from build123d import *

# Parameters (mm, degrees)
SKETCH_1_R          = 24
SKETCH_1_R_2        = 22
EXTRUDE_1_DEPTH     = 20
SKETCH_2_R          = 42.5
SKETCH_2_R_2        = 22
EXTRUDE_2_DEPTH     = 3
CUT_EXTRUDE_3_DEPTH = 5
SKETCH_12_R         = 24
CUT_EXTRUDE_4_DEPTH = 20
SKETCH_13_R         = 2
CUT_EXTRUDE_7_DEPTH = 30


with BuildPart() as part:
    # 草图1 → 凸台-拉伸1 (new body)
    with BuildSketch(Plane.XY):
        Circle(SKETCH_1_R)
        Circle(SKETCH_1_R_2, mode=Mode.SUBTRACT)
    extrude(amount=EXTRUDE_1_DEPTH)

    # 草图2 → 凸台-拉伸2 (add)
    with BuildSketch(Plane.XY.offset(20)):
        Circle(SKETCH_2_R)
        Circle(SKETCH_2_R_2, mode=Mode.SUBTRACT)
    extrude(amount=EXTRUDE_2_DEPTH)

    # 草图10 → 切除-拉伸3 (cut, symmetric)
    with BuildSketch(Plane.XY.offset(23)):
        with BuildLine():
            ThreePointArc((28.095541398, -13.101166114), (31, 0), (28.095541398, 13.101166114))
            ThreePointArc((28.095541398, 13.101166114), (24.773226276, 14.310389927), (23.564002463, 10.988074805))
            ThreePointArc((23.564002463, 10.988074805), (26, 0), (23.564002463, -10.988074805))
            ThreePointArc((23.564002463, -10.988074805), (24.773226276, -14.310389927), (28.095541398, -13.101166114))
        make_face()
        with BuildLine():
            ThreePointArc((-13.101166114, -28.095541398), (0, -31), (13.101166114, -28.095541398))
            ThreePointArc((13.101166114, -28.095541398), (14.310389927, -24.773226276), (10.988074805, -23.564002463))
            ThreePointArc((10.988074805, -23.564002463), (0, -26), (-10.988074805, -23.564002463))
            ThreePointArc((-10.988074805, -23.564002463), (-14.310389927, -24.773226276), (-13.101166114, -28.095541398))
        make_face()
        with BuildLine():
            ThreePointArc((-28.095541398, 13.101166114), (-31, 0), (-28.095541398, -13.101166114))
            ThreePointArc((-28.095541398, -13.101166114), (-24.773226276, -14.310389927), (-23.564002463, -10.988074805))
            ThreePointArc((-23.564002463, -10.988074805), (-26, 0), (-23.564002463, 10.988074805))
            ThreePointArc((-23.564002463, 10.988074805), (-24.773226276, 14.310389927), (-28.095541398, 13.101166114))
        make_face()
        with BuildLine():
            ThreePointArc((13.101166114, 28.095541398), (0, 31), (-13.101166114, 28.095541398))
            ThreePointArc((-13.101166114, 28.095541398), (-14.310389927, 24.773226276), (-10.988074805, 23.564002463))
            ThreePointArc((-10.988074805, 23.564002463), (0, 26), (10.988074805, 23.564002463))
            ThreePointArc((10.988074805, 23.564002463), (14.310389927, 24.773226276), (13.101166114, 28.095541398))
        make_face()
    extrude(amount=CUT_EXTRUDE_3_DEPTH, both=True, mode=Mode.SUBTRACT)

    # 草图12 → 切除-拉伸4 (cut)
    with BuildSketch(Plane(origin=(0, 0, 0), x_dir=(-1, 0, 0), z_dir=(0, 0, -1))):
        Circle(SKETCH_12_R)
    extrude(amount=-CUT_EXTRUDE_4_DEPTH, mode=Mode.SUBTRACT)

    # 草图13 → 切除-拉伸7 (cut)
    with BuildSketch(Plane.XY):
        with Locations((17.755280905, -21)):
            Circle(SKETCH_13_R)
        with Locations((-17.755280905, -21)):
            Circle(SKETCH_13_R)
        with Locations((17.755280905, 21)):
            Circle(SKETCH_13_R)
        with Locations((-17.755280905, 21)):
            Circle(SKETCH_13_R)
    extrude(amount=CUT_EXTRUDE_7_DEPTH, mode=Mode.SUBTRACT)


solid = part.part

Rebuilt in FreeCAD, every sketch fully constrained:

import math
import FreeCAD as App
import Part
import Sketcher
from FreeCAD import Vector
Q = App.Units.Quantity

doc = App.newDocument("Part")
params = doc.addObject("Spreadsheet::Sheet", "Params")
for row, (alias, value) in enumerate([
    ("sketch1_diameter", "48 mm"),
    ("sketch1_diameter2", "44 mm"),
    ("pad1_length", "20 mm"),
    ("sketch2_diameter", "85 mm"),
    ("sketch2_diameter2", "44 mm"),
    ("pad2_length", "3 mm"),
    ("sketch3_radius", "31 mm"),
    ("sketch3_radius2", "26 mm"),
    ("pocket1_length", "10 mm"),
    ("sketch4_diameter", "48 mm"),
    ("pocket2_length", "20 mm"),
    ("sketch5_diameter", "4 mm"),
    ("pocket3_length", "30 mm"),
], start=1):
    params.set(f"A{row}", alias)
    params.set(f"B{row}", "=" + value)
    params.setAlias(f"B{row}", alias)

body = doc.addObject("PartDesign::Body", "Body")

# Sketch on XY plane
sketch1 = body.newObject("Sketcher::SketchObject", "Sketch")
sketch1.AttachmentSupport = (doc.getObject("XY_Plane"), [""])
sketch1.MapMode = "FlatFace"
sketch1.addGeometry([
    Part.Circle(Vector(0, 0, 0), Vector(0, 0, 1), 24),
    Part.Circle(Vector(0, 0, 0), Vector(0, 0, 1), 22),
], False)
sketch1.addConstraint([
    Sketcher.Constraint("Coincident", 0, 3, -1, 1),
    Sketcher.Constraint("Coincident", 1, 3, -1, 1),
    Sketcher.Constraint("Diameter", 0, Q("48 mm")),
    Sketcher.Constraint("Diameter", 1, Q("44 mm")),
])
sketch1.setExpression("Constraints[2]", "Params.sketch1_diameter")
sketch1.setExpression("Constraints[3]", "Params.sketch1_diameter2")
pad1 = body.newObject("PartDesign::Pad", "Pad")
pad1.Profile = sketch1
pad1.setExpression("Length", "Params.pad1_length")

# Sketch on XY plane
sketch2 = body.newObject("Sketcher::SketchObject", "Sketch001")
sketch2.AttachmentSupport = (doc.getObject("XY_Plane"), [""])
sketch2.MapMode = "FlatFace"
sketch2.AttachmentOffset = App.Placement(Vector(0, 0, 20), App.Rotation())
sketch2.addGeometry([
    Part.Circle(Vector(0, 0, 0), Vector(0, 0, 1), 42),
    Part.Circle(Vector(0, 0, 0), Vector(0, 0, 1), 22),
], False)
sketch2.addConstraint([
    Sketcher.Constraint("Coincident", 0, 3, -1, 1),
    Sketcher.Constraint("Coincident", 1, 3, -1, 1),
    Sketcher.Constraint("Diameter", 0, Q("85 mm")),
    Sketcher.Constraint("Diameter", 1, Q("44 mm")),
])
sketch2.setExpression("Constraints[2]", "Params.sketch2_diameter")
sketch2.setExpression("Constraints[3]", "Params.sketch2_diameter2")
pad2 = body.newObject("PartDesign::Pad", "Pad001")
pad2.Profile = sketch2
pad2.setExpression("Length", "Params.pad2_length")

# Sketch on XY plane
sketch3 = body.newObject("Sketcher::SketchObject", "Sketch002")
sketch3.AttachmentSupport = (doc.getObject("XY_Plane"), [""])
sketch3.MapMode = "FlatFace"
sketch3.AttachmentOffset = App.Placement(Vector(0, 0, 23), App.Rotation())
sketch3.addGeometry([
    Part.ArcOfCircle(Part.Circle(Vector(0, 0, 0), Vector(0, 0, 1), 31), math.radians(-25), math.radians(25)),  # 0
    Part.ArcOfCircle(Part.Circle(Vector(25.8, 12, 0), Vector(0, 0, 1), 2.5), math.radians(25), math.radians(205)),  # 1
    Part.ArcOfCircle(Part.Circle(Vector(0, 0, 0), Vector(0, 0, 1), 26), math.radians(-25), math.radians(25)),  # 2
    Part.ArcOfCircle(Part.Circle(Vector(25.8, -12, 0), Vector(0, 0, 1), 2.5), math.radians(155), math.radians(335)),  # 3
    Part.ArcOfCircle(Part.Circle(Vector(0, 0, 0), Vector(0, 0, 1), 31), math.radians(-115), math.radians(-65)),  # 4
    Part.ArcOfCircle(Part.Circle(Vector(12, -25.8, 0), Vector(0, 0, 1), 2.5), math.radians(-65), math.radians(115)),  # 5
    Part.ArcOfCircle(Part.Circle(Vector(0, 0, 0), Vector(0, 0, 1), 26), math.radians(-115), math.radians(-65)),  # 6
    Part.ArcOfCircle(Part.Circle(Vector(-12, -25.8, 0), Vector(0, 0, 1), 2.5), math.radians(65), math.radians(245)),  # 7
    Part.ArcOfCircle(Part.Circle(Vector(0, 0, 0), Vector(0, 0, 1), 31), math.radians(155), math.radians(205)),  # 8
    Part.ArcOfCircle(Part.Circle(Vector(-25.8, -12, 0), Vector(0, 0, 1), 2.5), math.radians(-155), math.radians(25)),  # 9
    Part.ArcOfCircle(Part.Circle(Vector(0, 0, 0), Vector(0, 0, 1), 26), math.radians(155), math.radians(205)),  # 10
    Part.ArcOfCircle(Part.Circle(Vector(-25.8, 12, 0), Vector(0, 0, 1), 2.5), math.radians(-25), math.radians(155)),  # 11
    Part.ArcOfCircle(Part.Circle(Vector(0, 0, 0), Vector(0, 0, 1), 31), math.radians(65), math.radians(115)),  # 12
    Part.ArcOfCircle(Part.Circle(Vector(-12, 25.8, 0), Vector(0, 0, 1), 2.5), math.radians(115), math.radians(295)),  # 13
    Part.ArcOfCircle(Part.Circle(Vector(0, 0, 0), Vector(0, 0, 1), 26), math.radians(65), math.radians(115)),  # 14
    Part.ArcOfCircle(Part.Circle(Vector(12, 25.8, 0), Vector(0, 0, 1), 2.5), math.radians(-115), math.radians(65)),  # 15
], False)
sketch3.addConstraint([
    Sketcher.Constraint("Tangent", 0, 2, 1, 1),
    Sketcher.Constraint("Tangent", 1, 2, 2, 2),
    Sketcher.Constraint("Tangent", 2, 1, 3, 1),
    Sketcher.Constraint("Tangent", 3, 2, 0, 1),
    Sketcher.Constraint("Tangent", 4, 2, 5, 1),
    Sketcher.Constraint("Tangent", 5, 2, 6, 2),
    Sketcher.Constraint("Tangent", 6, 1, 7, 1),
    Sketcher.Constraint("Tangent", 7, 2, 4, 1),
    Sketcher.Constraint("Tangent", 8, 2, 9, 1),
    Sketcher.Constraint("Tangent", 9, 2, 10, 2),
    Sketcher.Constraint("Tangent", 10, 1, 11, 1),
    Sketcher.Constraint("Tangent", 11, 2, 8, 1),
    Sketcher.Constraint("Tangent", 12, 2, 13, 1),
    Sketcher.Constraint("Tangent", 13, 2, 14, 2),
    Sketcher.Constraint("Tangent", 14, 1, 15, 1),
    Sketcher.Constraint("Tangent", 15, 2, 12, 1),
    Sketcher.Constraint("Coincident", 0, 3, -1, 1),
    Sketcher.Constraint("Coincident", 2, 3, -1, 1),
    Sketcher.Constraint("Coincident", 4, 3, -1, 1),
    Sketcher.Constraint("Coincident", 6, 3, -1, 1),
    Sketcher.Constraint("Coincident", 8, 3, -1, 1),
    Sketcher.Constraint("Coincident", 10, 3, -1, 1),
    Sketcher.Constraint("Coincident", 12, 3, -1, 1),
    Sketcher.Constraint("Coincident", 14, 3, -1, 1),
    Sketcher.Constraint("Equal", 0, 4),
    Sketcher.Constraint("Equal", 3, 5),
    Sketcher.Constraint("Equal", 4, 8),
    Sketcher.Constraint("Equal", 7, 9),
    Sketcher.Constraint("Equal", 8, 12),
    Sketcher.Constraint("Equal", 11, 13),
    Sketcher.Constraint("Horizontal", 5, 3, 7, 3),
    Sketcher.Constraint("Horizontal", 3, 3, 9, 3),
    Sketcher.Constraint("Horizontal", 1, 3, 11, 3),
    Sketcher.Constraint("Horizontal", 13, 3, 15, 3),
    Sketcher.Constraint("Vertical", 1, 3, 3, 3),
    Sketcher.Constraint("Vertical", 7, 3, 13, 3),
    Sketcher.Constraint("Radius", 0, Q("31 mm")),
    Sketcher.Constraint("Radius", 2, Q("26 mm")),
    Sketcher.Constraint("DistanceX", -1, 1, 1, 3, Q("25.829772 mm")),
    Sketcher.Constraint("DistanceX", -1, 1, 5, 3, Q("12.04462 mm")),
])
sketch3.setExpression("Constraints[36]", "Params.sketch3_radius")
sketch3.setExpression("Constraints[37]", "Params.sketch3_radius2")
pocket1 = body.newObject("PartDesign::Pocket", "Pocket")
pocket1.Profile = sketch3
pocket1.setExpression("Length", "Params.pocket1_length")
pocket1.Midplane = True

# Sketch on XY plane
sketch4 = body.newObject("Sketcher::SketchObject", "Sketch003")
sketch4.AttachmentSupport = (doc.getObject("XY_Plane"), [""])
sketch4.MapMode = "FlatFace"
sketch4.addGeometry(Part.Circle(Vector(0, 0, 0), Vector(0, 0, 1), 24), False)
sketch4.addConstraint([
    Sketcher.Constraint("Coincident", 0, 3, -1, 1),
    Sketcher.Constraint("Diameter", 0, Q("48 mm")),
])
sketch4.setExpression("Constraints[1]", "Params.sketch4_diameter")
pocket2 = body.newObject("PartDesign::Pocket", "Pocket001")
pocket2.Profile = sketch4
pocket2.setExpression("Length", "Params.pocket2_length")
pocket2.Reversed = True

# Sketch on XY plane
sketch5 = body.newObject("Sketcher::SketchObject", "Sketch004")
sketch5.AttachmentSupport = (doc.getObject("XY_Plane"), [""])
sketch5.MapMode = "FlatFace"
sketch5.addGeometry([
    Part.Circle(Vector(17.8, -21, 0), Vector(0, 0, 1), 2),
    Part.Circle(Vector(-17.8, -21, 0), Vector(0, 0, 1), 2),
    Part.Circle(Vector(17.8, 21, 0), Vector(0, 0, 1), 2),
    Part.Circle(Vector(-17.8, 21, 0), Vector(0, 0, 1), 2),
], False)
sketch5.addConstraint([
    Sketcher.Constraint("Equal", 0, 1),
    Sketcher.Constraint("Equal", 1, 2),
    Sketcher.Constraint("Equal", 2, 3),
    Sketcher.Constraint("Symmetric", 1, 3, 2, 3, -1, 1),
    Sketcher.Constraint("Symmetric", 0, 3, 3, 3, -1, 1),
    Sketcher.Constraint("Symmetric", 0, 3, 1, 3, -2),
    Sketcher.Constraint("Diameter", 0, Q("4 mm")),
    Sketcher.Constraint("DistanceY", 0, 3, -1, 1, Q("21 mm")),
    Sketcher.Constraint("DistanceX", -1, 1, 0, 3, Q("17.755281 mm")),
])
sketch5.setExpression("Constraints[6]", "Params.sketch5_diameter")
pocket3 = body.newObject("PartDesign::Pocket", "Pocket002")
pocket3.Profile = sketch5
pocket3.setExpression("Length", "Params.pocket3_length")
pocket3.Reversed = True

doc.recompute()
